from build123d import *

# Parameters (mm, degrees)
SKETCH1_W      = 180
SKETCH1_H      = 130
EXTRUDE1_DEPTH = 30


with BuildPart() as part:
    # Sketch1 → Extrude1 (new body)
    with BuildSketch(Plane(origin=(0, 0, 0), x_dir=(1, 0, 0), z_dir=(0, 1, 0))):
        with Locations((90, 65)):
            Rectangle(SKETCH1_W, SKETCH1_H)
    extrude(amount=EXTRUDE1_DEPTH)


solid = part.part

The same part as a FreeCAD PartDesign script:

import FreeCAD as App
import Part
import Sketcher

V = App.Vector
Q = App.Units.Quantity

doc = App.newDocument("Part")
body = doc.addObject("PartDesign::Body", "Body")

# Sketch on XZ plane
sketch1 = body.newObject("Sketcher::SketchObject", "Sketch")
sketch1.AttachmentSupport = (doc.getObject("XZ_Plane"), [""])
sketch1.MapMode = "FlatFace"
sketch1.addGeometry(Part.LineSegment(V(0, -130, 0), V(0, 0, 0)), False)
sketch1.addGeometry(Part.LineSegment(V(0, 0, 0), V(180, 0, 0)), False)
sketch1.addGeometry(Part.LineSegment(V(180, 0, 0), V(180, -130, 0)), False)
sketch1.addGeometry(Part.LineSegment(V(180, -130, 0), V(0, -130, 0)), False)
sketch1.addConstraint(Sketcher.Constraint("Coincident", 0, 2, 1, 1))
sketch1.addConstraint(Sketcher.Constraint("Coincident", 1, 2, 2, 1))
sketch1.addConstraint(Sketcher.Constraint("Coincident", 2, 2, 3, 1))
sketch1.addConstraint(Sketcher.Constraint("Coincident", 3, 2, 0, 1))
sketch1.addConstraint(Sketcher.Constraint("Vertical", 0))
sketch1.addConstraint(Sketcher.Constraint("Horizontal", 1))
sketch1.addConstraint(Sketcher.Constraint("Vertical", 2))
sketch1.addConstraint(Sketcher.Constraint("Horizontal", 3))
sketch1.addConstraint(Sketcher.Constraint("Coincident", 0, 2, -1, 1))
sketch1.addConstraint(Sketcher.Constraint("DistanceX", 1, 1, 1, 2, Q("180 mm")))
sketch1.addConstraint(Sketcher.Constraint("DistanceY", 0, 1, 0, 2, Q("130 mm")))
pad1 = body.newObject("PartDesign::Pad", "Pad")
pad1.Profile = sketch1
pad1.Length = 30
pad1.Reversed = True

doc.recompute()
